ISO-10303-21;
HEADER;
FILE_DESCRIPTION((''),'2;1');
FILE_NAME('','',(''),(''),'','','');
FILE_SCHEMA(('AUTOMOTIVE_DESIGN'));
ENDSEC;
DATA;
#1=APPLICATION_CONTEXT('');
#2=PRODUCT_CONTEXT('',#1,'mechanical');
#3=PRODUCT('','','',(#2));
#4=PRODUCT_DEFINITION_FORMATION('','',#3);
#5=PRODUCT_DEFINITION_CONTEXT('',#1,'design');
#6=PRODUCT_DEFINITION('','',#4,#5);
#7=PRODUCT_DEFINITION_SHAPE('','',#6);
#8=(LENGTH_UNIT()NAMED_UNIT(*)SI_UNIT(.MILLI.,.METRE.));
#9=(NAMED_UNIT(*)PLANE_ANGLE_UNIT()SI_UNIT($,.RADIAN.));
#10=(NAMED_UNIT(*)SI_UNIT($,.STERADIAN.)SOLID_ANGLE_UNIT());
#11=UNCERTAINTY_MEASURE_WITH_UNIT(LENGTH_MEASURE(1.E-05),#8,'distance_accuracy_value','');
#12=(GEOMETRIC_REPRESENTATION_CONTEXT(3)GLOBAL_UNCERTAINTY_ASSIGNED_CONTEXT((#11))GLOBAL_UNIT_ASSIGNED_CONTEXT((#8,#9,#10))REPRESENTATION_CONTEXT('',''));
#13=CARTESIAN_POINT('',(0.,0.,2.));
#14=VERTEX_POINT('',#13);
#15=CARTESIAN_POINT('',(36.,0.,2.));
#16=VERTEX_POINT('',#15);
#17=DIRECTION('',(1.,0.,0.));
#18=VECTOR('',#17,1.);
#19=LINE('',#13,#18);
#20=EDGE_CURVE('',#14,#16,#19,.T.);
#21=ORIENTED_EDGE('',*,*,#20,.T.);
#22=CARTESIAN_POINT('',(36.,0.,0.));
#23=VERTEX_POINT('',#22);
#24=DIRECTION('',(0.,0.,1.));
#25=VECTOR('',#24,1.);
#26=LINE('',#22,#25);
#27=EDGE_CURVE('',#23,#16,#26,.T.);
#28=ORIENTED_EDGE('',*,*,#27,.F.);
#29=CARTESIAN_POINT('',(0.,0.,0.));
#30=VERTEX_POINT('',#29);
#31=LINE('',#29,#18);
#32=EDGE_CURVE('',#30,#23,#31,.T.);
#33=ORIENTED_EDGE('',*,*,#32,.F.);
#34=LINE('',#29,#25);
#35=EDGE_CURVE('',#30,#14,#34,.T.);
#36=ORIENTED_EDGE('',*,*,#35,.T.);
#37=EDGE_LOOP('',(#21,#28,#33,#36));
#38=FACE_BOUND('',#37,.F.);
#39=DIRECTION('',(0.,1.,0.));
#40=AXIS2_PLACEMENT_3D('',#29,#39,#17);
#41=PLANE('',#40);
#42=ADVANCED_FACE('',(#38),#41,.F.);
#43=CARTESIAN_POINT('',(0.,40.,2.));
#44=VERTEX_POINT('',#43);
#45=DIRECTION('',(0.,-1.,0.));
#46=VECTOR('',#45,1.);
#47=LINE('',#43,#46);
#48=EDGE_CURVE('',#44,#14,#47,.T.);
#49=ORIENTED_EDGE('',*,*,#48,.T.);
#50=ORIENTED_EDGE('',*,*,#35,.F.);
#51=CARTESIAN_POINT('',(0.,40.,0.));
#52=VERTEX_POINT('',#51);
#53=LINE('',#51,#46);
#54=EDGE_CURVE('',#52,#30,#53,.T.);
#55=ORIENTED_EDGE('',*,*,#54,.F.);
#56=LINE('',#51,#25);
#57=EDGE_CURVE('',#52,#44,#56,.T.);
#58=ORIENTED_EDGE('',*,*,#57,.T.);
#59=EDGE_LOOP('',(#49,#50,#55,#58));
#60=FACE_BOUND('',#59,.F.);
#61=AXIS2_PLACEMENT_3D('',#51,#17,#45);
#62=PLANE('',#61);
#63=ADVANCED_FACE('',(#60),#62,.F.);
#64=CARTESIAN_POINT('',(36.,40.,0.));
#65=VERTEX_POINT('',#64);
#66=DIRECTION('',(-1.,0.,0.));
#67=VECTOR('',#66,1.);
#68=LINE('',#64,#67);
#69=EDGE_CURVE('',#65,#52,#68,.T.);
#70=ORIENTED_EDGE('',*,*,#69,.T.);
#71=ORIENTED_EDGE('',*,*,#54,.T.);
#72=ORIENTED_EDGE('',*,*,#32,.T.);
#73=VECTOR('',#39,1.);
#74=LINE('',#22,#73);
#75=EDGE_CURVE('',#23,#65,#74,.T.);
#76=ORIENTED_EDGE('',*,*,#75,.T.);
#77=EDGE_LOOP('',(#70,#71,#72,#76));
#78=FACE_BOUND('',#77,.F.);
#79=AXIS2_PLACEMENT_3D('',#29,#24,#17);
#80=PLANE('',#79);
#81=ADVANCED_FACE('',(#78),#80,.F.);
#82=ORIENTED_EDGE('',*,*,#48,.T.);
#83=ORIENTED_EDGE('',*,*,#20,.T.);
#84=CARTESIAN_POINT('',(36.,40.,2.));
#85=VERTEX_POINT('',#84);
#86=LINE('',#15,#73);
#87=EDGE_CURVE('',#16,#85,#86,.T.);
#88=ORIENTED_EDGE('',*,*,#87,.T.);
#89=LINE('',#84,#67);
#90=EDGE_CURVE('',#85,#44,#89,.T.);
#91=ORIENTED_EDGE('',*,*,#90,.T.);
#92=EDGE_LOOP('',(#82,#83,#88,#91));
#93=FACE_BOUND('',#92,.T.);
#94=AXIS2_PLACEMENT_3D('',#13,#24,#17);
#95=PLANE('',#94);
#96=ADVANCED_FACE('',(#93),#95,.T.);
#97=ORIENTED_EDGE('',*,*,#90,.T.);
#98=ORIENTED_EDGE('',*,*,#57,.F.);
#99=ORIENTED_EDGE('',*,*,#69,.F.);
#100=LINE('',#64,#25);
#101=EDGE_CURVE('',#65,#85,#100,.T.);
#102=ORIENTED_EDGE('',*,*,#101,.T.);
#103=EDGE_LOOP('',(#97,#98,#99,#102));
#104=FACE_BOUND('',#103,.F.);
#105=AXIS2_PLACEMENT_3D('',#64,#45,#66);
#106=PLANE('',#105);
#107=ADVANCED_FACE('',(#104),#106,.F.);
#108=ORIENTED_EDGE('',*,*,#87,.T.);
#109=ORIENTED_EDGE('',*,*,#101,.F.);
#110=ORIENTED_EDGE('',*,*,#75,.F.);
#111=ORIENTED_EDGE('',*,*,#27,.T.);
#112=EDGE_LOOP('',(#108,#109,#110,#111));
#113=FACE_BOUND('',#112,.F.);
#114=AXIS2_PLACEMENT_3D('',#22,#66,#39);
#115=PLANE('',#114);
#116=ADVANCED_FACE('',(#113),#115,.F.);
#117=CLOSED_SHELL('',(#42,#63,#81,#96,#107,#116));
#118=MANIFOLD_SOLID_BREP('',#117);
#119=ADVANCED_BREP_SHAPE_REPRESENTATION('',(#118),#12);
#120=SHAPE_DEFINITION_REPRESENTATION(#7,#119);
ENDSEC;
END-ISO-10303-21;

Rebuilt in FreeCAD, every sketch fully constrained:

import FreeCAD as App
import Part
import Sketcher
from FreeCAD import Vector


def add_polygon(sketch, points):
    """Adds a closed chain of lines whose ends are joined by coincident constraints."""
    first, n = sketch.GeometryCount, len(points)
    for a, b in zip(points, points[1:] + points[:1]):
        sketch.addGeometry(Part.LineSegment(App.Vector(*a, 0), App.Vector(*b, 0)), False)
    for i in range(n):
        sketch.addConstraint(Sketcher.Constraint("Coincident", first + i, 2, first + (i + 1) % n, 1))

doc = App.newDocument("Part")
body = doc.addObject("PartDesign::Body", "Body")

sketch1 = body.newObject("Sketcher::SketchObject", "Sketch")
sketch1.AttachmentSupport = (doc.getObject("XY_Plane"), [""])
sketch1.MapMode = "FlatFace"
add_polygon(sketch1, [(0, 40), (0, 0), (36, 0), (36, 40)])
sketch1.addConstraint([
    Sketcher.Constraint("Vertical", 0),
    Sketcher.Constraint("Horizontal", 1),
    Sketcher.Constraint("Vertical", 2),
    Sketcher.Constraint("Horizontal", 3),
    Sketcher.Constraint("Coincident", 0, 2, -1, 1),
    Sketcher.Constraint("DistanceX", 1, 1, 1, 2, 36.0),
    Sketcher.Constraint("DistanceY", 0, 2, 0, 1, 40.0),
])
pad1 = body.newObject("PartDesign::Pad", "Pad")
pad1.Profile = sketch1
pad1.Length = 2

doc.recompute()
